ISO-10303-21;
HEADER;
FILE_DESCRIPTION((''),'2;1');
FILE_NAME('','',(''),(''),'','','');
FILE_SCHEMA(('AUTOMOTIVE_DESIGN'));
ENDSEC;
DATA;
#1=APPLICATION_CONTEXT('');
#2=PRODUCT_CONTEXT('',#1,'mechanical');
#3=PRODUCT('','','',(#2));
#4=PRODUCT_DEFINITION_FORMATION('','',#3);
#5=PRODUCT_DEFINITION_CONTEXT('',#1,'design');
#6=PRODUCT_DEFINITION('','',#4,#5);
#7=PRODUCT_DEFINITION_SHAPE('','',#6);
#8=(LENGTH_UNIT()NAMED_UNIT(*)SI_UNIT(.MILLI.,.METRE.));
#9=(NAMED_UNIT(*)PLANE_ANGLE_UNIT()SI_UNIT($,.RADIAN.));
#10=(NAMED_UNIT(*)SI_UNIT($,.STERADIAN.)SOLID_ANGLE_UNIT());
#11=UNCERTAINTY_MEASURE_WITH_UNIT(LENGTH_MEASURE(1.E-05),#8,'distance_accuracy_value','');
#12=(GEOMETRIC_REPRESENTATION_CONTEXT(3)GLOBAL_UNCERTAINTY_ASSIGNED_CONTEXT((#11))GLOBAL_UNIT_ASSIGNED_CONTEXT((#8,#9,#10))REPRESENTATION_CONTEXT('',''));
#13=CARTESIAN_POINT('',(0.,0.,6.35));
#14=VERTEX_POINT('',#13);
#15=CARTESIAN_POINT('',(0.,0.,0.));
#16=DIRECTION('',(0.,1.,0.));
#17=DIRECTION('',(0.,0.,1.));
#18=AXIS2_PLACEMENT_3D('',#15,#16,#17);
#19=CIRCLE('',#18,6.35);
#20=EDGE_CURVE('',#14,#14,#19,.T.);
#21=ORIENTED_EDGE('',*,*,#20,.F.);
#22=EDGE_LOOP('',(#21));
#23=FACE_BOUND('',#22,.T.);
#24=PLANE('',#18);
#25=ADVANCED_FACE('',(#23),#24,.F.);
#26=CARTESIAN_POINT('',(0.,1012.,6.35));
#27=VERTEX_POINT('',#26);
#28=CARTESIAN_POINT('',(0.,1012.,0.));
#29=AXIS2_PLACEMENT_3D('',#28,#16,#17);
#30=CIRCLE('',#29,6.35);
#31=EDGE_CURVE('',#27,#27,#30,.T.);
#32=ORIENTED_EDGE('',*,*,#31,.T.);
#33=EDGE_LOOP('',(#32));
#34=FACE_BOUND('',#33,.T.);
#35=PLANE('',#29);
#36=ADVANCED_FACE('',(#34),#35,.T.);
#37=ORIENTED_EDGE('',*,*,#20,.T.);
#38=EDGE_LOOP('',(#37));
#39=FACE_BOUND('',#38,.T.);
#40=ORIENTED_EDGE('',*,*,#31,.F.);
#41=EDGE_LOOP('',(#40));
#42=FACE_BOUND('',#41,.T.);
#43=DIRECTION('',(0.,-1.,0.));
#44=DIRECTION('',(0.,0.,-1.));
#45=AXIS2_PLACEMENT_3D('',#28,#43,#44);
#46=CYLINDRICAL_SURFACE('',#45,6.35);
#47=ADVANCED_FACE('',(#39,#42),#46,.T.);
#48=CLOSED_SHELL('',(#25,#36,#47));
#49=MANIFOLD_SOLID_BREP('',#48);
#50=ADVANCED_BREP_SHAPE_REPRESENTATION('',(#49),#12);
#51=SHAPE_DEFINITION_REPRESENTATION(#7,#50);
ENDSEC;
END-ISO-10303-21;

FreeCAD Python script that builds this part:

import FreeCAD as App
import Part
import Sketcher
Q = App.Units.Quantity

doc = App.newDocument("Part")
body = doc.addObject("PartDesign::Body", "Body")

# Sketch on XZ plane
sketch1 = body.newObject("Sketcher::SketchObject", "Sketch")
sketch1.AttachmentSupport = (doc.getObject("XZ_Plane"), [""])
sketch1.MapMode = "FlatFace"
sketch1.addGeometry(Part.Circle(App.Vector(0, 0, 0), App.Vector(0, 0, 1), 6), False)
sketch1.addConstraint([
    Sketcher.Constraint("Coincident", 0, 3, -1, 1),
    Sketcher.Constraint("Diameter", 0, Q("12.7 mm")),
])
pad1 = body.newObject("PartDesign::Pad", "Pad")
pad1.Profile = sketch1
pad1.Length = 1012
pad1.Reversed = True

doc.recompute()
